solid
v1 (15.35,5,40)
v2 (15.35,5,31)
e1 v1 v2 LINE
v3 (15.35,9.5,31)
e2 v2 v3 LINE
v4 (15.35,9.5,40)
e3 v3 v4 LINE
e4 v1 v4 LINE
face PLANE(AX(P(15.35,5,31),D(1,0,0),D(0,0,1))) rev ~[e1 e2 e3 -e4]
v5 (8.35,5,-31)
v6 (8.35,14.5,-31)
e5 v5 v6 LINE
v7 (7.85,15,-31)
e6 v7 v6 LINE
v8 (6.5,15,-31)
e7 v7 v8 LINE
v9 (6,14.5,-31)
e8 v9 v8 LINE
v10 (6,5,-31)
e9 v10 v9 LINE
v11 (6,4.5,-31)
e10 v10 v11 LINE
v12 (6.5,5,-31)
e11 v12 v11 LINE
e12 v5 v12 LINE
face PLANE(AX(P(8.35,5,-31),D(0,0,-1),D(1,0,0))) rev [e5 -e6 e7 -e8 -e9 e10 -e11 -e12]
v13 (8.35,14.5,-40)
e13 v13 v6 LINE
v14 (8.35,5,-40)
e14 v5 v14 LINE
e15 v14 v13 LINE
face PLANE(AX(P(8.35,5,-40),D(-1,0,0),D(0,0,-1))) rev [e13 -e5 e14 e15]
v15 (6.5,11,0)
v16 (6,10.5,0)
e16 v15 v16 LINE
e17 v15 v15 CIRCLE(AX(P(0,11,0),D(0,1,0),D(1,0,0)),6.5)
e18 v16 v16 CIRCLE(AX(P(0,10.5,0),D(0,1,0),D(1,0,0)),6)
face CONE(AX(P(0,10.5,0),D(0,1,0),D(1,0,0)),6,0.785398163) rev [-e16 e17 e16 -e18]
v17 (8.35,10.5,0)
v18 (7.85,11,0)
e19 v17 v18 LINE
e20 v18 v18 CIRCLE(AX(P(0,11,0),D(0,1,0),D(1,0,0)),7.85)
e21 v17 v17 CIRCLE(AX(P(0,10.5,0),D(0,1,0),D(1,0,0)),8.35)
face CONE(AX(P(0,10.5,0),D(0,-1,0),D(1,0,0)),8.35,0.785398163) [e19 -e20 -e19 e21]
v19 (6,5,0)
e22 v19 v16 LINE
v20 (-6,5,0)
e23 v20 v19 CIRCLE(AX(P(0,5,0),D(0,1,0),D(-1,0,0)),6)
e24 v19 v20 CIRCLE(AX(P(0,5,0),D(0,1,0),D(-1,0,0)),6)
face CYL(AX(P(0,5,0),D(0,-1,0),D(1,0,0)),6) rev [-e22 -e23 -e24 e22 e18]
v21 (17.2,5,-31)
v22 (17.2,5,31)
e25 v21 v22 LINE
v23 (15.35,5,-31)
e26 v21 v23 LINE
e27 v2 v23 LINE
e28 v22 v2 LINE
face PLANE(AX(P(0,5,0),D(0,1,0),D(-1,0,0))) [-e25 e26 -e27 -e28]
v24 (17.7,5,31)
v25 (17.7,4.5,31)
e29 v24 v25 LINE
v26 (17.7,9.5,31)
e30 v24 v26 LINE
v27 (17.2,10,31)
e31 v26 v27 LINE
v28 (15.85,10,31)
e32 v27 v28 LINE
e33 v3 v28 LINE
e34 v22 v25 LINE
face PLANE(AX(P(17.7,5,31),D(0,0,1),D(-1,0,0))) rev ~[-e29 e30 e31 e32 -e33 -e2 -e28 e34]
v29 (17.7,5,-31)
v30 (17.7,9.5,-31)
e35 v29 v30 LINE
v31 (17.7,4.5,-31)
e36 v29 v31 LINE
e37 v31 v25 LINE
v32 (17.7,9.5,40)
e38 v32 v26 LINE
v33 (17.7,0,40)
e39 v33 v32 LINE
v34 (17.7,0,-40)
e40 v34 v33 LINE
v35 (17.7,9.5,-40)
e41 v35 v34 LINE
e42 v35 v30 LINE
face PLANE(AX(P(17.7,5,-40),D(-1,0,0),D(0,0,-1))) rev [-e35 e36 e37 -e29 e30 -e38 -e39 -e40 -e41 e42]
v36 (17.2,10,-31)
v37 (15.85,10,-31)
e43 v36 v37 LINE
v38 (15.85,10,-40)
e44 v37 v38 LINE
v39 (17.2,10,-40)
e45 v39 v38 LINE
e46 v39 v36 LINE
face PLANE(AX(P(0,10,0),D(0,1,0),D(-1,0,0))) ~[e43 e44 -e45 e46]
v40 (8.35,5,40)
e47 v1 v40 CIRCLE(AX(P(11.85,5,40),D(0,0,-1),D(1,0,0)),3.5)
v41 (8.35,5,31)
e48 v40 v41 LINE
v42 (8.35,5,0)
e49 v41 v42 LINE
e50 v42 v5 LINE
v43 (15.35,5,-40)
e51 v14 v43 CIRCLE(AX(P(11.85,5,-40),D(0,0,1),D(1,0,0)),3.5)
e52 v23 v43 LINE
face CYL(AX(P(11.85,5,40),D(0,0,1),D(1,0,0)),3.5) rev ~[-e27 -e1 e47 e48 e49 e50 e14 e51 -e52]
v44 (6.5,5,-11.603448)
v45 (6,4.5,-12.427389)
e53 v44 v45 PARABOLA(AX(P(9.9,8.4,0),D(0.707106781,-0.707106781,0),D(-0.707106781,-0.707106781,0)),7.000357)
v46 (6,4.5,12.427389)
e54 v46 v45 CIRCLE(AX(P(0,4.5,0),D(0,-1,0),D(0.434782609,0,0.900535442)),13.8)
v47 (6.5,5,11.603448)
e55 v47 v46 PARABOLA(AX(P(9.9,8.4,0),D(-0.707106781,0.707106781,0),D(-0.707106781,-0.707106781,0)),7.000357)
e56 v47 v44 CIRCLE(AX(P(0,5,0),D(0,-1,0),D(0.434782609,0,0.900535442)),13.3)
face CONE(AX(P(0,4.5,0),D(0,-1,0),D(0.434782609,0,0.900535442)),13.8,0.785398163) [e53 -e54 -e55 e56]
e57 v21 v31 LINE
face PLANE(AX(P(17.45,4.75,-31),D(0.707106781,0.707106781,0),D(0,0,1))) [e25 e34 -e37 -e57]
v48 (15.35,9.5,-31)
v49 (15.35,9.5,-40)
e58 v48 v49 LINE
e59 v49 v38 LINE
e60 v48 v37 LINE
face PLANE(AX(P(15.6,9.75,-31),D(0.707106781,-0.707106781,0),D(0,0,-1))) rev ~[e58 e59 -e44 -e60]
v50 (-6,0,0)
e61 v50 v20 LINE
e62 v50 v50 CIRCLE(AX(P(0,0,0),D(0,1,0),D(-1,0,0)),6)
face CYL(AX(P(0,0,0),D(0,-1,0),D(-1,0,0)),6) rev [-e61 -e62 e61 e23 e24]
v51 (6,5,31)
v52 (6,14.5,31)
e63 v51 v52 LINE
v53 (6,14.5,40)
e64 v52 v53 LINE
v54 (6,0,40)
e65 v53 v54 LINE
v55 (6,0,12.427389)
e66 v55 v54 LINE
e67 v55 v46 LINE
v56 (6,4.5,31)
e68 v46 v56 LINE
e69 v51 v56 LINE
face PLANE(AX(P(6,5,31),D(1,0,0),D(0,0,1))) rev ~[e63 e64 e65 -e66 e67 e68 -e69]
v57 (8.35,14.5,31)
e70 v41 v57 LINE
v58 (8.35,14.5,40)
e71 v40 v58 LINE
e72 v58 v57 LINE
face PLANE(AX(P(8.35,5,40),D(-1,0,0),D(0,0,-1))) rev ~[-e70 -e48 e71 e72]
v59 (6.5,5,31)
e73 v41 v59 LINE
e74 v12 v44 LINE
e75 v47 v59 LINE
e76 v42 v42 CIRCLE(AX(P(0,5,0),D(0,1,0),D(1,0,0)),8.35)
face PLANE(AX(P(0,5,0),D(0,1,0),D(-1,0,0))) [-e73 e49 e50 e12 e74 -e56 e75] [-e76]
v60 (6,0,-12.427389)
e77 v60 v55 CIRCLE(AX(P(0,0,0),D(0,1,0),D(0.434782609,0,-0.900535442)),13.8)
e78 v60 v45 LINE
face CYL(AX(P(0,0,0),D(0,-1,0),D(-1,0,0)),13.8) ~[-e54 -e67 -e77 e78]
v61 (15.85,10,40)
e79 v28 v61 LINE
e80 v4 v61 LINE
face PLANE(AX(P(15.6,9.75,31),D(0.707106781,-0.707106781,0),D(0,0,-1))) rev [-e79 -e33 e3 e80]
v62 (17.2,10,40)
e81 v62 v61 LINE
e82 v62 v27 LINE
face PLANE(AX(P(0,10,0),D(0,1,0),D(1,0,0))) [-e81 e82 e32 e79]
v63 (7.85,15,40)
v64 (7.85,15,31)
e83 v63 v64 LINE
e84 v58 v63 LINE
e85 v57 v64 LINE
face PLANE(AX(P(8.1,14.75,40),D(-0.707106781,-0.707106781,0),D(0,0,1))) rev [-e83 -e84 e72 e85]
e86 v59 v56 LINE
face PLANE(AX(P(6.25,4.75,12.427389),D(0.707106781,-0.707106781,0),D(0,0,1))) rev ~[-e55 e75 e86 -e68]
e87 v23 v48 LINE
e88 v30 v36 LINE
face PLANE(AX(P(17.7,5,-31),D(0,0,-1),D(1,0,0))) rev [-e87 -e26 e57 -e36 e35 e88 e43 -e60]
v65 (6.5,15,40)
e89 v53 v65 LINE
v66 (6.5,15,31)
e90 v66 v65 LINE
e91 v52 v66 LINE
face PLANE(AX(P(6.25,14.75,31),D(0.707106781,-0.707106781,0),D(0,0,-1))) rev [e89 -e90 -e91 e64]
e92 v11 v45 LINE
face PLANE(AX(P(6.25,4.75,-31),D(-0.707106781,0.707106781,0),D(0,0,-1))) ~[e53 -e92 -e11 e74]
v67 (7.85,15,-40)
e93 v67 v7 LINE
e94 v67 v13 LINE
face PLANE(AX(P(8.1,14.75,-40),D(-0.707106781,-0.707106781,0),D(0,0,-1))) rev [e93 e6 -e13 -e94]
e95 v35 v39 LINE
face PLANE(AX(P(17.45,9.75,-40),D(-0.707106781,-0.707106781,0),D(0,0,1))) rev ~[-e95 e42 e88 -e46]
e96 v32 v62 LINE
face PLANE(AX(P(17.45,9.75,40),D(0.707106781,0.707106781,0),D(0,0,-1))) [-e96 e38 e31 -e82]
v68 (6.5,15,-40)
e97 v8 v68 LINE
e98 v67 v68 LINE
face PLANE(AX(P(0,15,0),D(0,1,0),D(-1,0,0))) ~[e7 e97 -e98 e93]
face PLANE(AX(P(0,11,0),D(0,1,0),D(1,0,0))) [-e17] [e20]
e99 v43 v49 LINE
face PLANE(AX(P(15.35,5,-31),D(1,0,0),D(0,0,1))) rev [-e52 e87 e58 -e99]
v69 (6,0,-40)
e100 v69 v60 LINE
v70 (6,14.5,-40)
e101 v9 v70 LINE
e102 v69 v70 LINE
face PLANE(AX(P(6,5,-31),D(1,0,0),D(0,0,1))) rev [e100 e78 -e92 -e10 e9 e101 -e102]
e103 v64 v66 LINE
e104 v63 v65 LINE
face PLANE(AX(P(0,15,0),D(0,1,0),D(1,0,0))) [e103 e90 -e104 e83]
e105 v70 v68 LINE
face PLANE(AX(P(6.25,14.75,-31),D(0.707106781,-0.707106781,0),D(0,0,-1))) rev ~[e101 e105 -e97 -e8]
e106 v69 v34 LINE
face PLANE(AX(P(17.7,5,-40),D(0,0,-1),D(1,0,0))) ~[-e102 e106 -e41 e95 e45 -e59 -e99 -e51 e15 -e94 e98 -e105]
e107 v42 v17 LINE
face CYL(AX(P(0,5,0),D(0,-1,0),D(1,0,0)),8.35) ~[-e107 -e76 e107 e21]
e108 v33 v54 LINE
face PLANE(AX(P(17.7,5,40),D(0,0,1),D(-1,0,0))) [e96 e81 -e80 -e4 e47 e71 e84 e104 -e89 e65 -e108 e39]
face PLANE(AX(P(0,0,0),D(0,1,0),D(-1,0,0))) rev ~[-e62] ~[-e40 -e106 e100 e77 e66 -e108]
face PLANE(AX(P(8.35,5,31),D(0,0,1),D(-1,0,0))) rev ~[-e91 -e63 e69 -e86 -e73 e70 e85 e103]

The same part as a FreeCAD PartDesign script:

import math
import FreeCAD as App
import Part
import Sketcher
from FreeCAD import Vector


def edges_at(feature, points):
    """Names of the edges that pass closest to the given points."""
    edges = feature.Shape.Edges
    near = lambda p: min(range(len(edges)), key=lambda i: edges[i].distToShape(Part.Vertex(*p))[0])
    return sorted({f"Edge{near(p) + 1}" for p in points})

doc = App.newDocument("Part")
params = doc.addObject("Spreadsheet::Sheet", "Params")
for row, (alias, value) in enumerate([
    ("sketch1_diameter", "12 mm"),
    ("sketch1_diameter2", "27.6 mm"),
    ("pad1_length", "5 mm"),
    ("sketch2_height", "80 mm"),
    ("sketch2_radius", "13.8 mm"),
    ("sketch2_width", "11.7 mm"),
    ("pad2_length", "5 mm"),
    ("sketch3_radius", "3.5 mm"),
    ("sketch4_height", "9 mm"),
    ("sketch4_width", "2.35 mm"),
    ("pad3_length", "10 mm"),
    ("sketch5_height", "9 mm"),
    ("sketch5_width", "2.35 mm"),
    ("pad4_length", "5 mm"),
    ("sketch6_diameter", "12 mm"),
    ("sketch6_diameter2", "16.7 mm"),
    ("pad5_length", "6 mm"),
    ("chamfer_size", "0.5 mm"),
], start=1):
    params.set(f"A{row}", alias)
    params.set(f"B{row}", "=" + value)
    params.setAlias(f"B{row}", alias)

body = doc.addObject("PartDesign::Body", "Body")

sketch1 = body.newObject("Sketcher::SketchObject", "Sketch")
sketch1.AttachmentSupport = (doc.getObject("XZ_Plane"), [""])
sketch1.MapMode = "FlatFace"
sketch1.addGeometry([
    Part.Circle(Vector(0, 0, 0), Vector(0, 0, 1), 13.8),
    Part.Circle(Vector(0, 0, 0), Vector(0, 0, 1), 6),
], False)
sketch1.addConstraint([
    Sketcher.Constraint("Coincident", 0, 3, -1, 1),
    Sketcher.Constraint("Coincident", 1, 3, -1, 1),
    Sketcher.Constraint("Diameter", 1, 12.0),
    Sketcher.Constraint("Diameter", 0, 27.6),
])
sketch1.setExpression("Constraints[2]", "Params.sketch1_diameter")
sketch1.setExpression("Constraints[3]", "Params.sketch1_diameter2")
pad1 = body.newObject("PartDesign::Pad", "Pad")
pad1.Profile = sketch1
pad1.setExpression("Length", "Params.pad1_length")
pad1.Reversed = True

sketch2 = body.newObject("Sketcher::SketchObject", "Sketch001")
sketch2.AttachmentSupport = (doc.getObject("XZ_Plane"), [""])
sketch2.MapMode = "FlatFace"
sketch2.addGeometry([
    Part.LineSegment(Vector(6, -12.427389, 0), Vector(6, -40, 0)),
    Part.LineSegment(Vector(6, -40, 0), Vector(17.7, -40, 0)),
    Part.LineSegment(Vector(17.7, -40, 0), Vector(17.7, 40, 0)),
    Part.LineSegment(Vector(17.7, 40, 0), Vector(6, 40, 0)),
    Part.LineSegment(Vector(6, 40, 0), Vector(6, 12.427389, 0)),
    Part.ArcOfCircle(Part.Circle(Vector(0, 0, 0), Vector(0, 0, 1), 13.8), math.radians(-64.228538), math.radians(64.228538)),
], False)
sketch2.addConstraint([
    Sketcher.Constraint("Coincident", 0, 2, 1, 1),
    Sketcher.Constraint("Coincident", 1, 2, 2, 1),
    Sketcher.Constraint("Coincident", 2, 2, 3, 1),
    Sketcher.Constraint("Coincident", 3, 2, 4, 1),
    Sketcher.Constraint("Coincident", 4, 2, 5, 2),
    Sketcher.Constraint("Coincident", 5, 1, 0, 1),
    Sketcher.Constraint("Vertical", 0),
    Sketcher.Constraint("Horizontal", 1),
    Sketcher.Constraint("Vertical", 2),
    Sketcher.Constraint("Horizontal", 3),
    Sketcher.Constraint("Vertical", 4),
    Sketcher.Constraint("Coincident", 5, 3, -1, 1),
    Sketcher.Constraint("Symmetric", 0, 2, 3, 2, -1),
    Sketcher.Constraint("DistanceY", 2, 1, 2, 2, 80.0),
    Sketcher.Constraint("Radius", 5, 13.8),
    Sketcher.Constraint("DistanceX", 1, 1, 1, 2, 11.7),
    Sketcher.Constraint("DistanceX", -1, 1, 0, 2, 6.0),
])
sketch2.setExpression("Constraints[13]", "Params.sketch2_height")
sketch2.setExpression("Constraints[14]", "Params.sketch2_radius")
sketch2.setExpression("Constraints[15]", "Params.sketch2_width")
pad2 = body.newObject("PartDesign::Pad", "Pad001")
pad2.Profile = sketch2
pad2.setExpression("Length", "Params.pad2_length")
pad2.Reversed = True

sketch3 = body.newObject("Sketcher::SketchObject", "Sketch002")
sketch3.AttachmentSupport = (doc.getObject("XY_Plane"), [""])
sketch3.MapMode = "FlatFace"
sketch3.AttachmentOffset = App.Placement(Vector(0, 0, 40), App.Rotation())
sketch3.addGeometry([
    Part.ArcOfCircle(Part.Circle(Vector(11.85, 5, 0), Vector(0, 0, 1), 3.5), math.radians(180), math.radians(360)),
    Part.LineSegment(Vector(15.35, 5, 0), Vector(8.35, 5, 0)),
], False)
sketch3.addConstraint([
    Sketcher.Constraint("Coincident", 0, 1, 1, 2),
    Sketcher.Constraint("Coincident", 1, 1, 0, 2),
    Sketcher.Constraint("Horizontal", 1),
    Sketcher.Constraint("Radius", 0, 3.5),
    Sketcher.Constraint("DistanceY", -1, 1, 0, 3, 5.0),
    Sketcher.Constraint("DistanceY", -1, 1, 0, 1, 5.0),
    Sketcher.Constraint("DistanceX", -1, 1, 0, 3, 11.85),
])
sketch3.setExpression("Constraints[3]", "Params.sketch3_radius")
pocket1 = body.newObject("PartDesign::Pocket", "Pocket")
pocket1.Profile = sketch3
pocket1.Type = "ThroughAll"

sketch4 = body.newObject("Sketcher::SketchObject", "Sketch003")
sketch4.AttachmentSupport = (doc.getObject("XZ_Plane"), [""])
sketch4.MapMode = "FlatFace"
sketch4.AttachmentOffset = App.Placement(Vector(0, 0, -5), App.Rotation())
sketch4.addGeometry([
    Part.LineSegment(Vector(6, 40, 0), Vector(8.35, 40, 0)),
    Part.LineSegment(Vector(8.35, 40, 0), Vector(8.35, 31, 0)),
    Part.LineSegment(Vector(8.35, 31, 0), Vector(6, 31, 0)),
    Part.LineSegment(Vector(6, 31, 0), Vector(6, 40, 0)),
], False)
sketch4.addConstraint([
    Sketcher.Constraint("Coincident", 0, 2, 1, 1),
    Sketcher.Constraint("Coincident", 1, 2, 2, 1),
    Sketcher.Constraint("Coincident", 2, 2, 3, 1),
    Sketcher.Constraint("Coincident", 3, 2, 0, 1),
    Sketcher.Constraint("Horizontal", 0),
    Sketcher.Constraint("Vertical", 1),
    Sketcher.Constraint("Horizontal", 2),
    Sketcher.Constraint("Vertical", 3),
    Sketcher.Constraint("DistanceY", 1, 2, 1, 1, 9.0),
    Sketcher.Constraint("DistanceY", -1, 1, 0, 2, 40.0),
    Sketcher.Constraint("DistanceX", -1, 1, 2, 2, 6.0),
    Sketcher.Constraint("DistanceX", 0, 1, 0, 2, 2.35),
])
sketch4.setExpression("Constraints[8]", "Params.sketch4_height")
sketch4.setExpression("Constraints[11]", "Params.sketch4_width")
pad3 = body.newObject("PartDesign::Pad", "Pad002")
pad3.Profile = sketch4
pad3.setExpression("Length", "Params.pad3_length")
pad3.Reversed = True

sketch5 = body.newObject("Sketcher::SketchObject", "Sketch004")
sketch5.AttachmentSupport = (doc.getObject("XZ_Plane"), [""])
sketch5.MapMode = "FlatFace"
sketch5.AttachmentOffset = App.Placement(Vector(0, 0, -5), App.Rotation())
sketch5.addGeometry([
    Part.LineSegment(Vector(15.35, 40, 0), Vector(17.7, 40, 0)),
    Part.LineSegment(Vector(17.7, 40, 0), Vector(17.7, 31, 0)),
    Part.LineSegment(Vector(17.7, 31, 0), Vector(15.35, 31, 0)),
    Part.LineSegment(Vector(15.35, 31, 0), Vector(15.35, 40, 0)),
], False)
sketch5.addConstraint([
    Sketcher.Constraint("Coincident", 0, 2, 1, 1),
    Sketcher.Constraint("Coincident", 1, 2, 2, 1),
    Sketcher.Constraint("Coincident", 2, 2, 3, 1),
    Sketcher.Constraint("Coincident", 3, 2, 0, 1),
    Sketcher.Constraint("Horizontal", 0),
    Sketcher.Constraint("Vertical", 1),
    Sketcher.Constraint("Horizontal", 2),
    Sketcher.Constraint("Vertical", 3),
    Sketcher.Constraint("DistanceY", 1, 2, 1, 1, 9.0),
    Sketcher.Constraint("DistanceY", -1, 1, 0, 2, 40.0),
    Sketcher.Constraint("DistanceX", 0, 1, 0, 2, 2.35),
    Sketcher.Constraint("DistanceX", -1, 1, 0, 2, 17.7),
])
sketch5.setExpression("Constraints[8]", "Params.sketch5_height")
sketch5.setExpression("Constraints[10]", "Params.sketch5_width")
pad4 = body.newObject("PartDesign::Pad", "Pad003")
pad4.Profile = sketch5
pad4.setExpression("Length", "Params.pad4_length")
pad4.Reversed = True
doc.recompute()

mirrored = body.newObject("PartDesign::Mirrored", "Mirrored")
mirrored.Originals = [pad3, pad4]
mirrored.MirrorPlane = (doc.getObject("XY_Plane"), [""])
body.Tip = mirrored

sketch6 = body.newObject("Sketcher::SketchObject", "Sketch005")
sketch6.AttachmentSupport = (doc.getObject("XZ_Plane"), [""])
sketch6.MapMode = "FlatFace"
sketch6.AttachmentOffset = App.Placement(Vector(0, 0, -5), App.Rotation())
sketch6.addGeometry([
    Part.Circle(Vector(0, 0, 0), Vector(0, 0, 1), 8.35),
    Part.Circle(Vector(0, 0, 0), Vector(0, 0, 1), 6),
], False)
sketch6.addConstraint([
    Sketcher.Constraint("Coincident", 0, 3, -1, 1),
    Sketcher.Constraint("Coincident", 1, 3, -1, 1),
    Sketcher.Constraint("Diameter", 1, 12.0),
    Sketcher.Constraint("Diameter", 0, 16.7),
])
sketch6.setExpression("Constraints[2]", "Params.sketch6_diameter")
sketch6.setExpression("Constraints[3]", "Params.sketch6_diameter2")
pad5 = body.newObject("PartDesign::Pad", "Pad004")
pad5.Profile = sketch6
pad5.setExpression("Length", "Params.pad5_length")
pad5.Reversed = True
doc.recompute()

chamfer = body.newObject("PartDesign::Chamfer", "Chamfer")
chamfer.Base = (pad5, edges_at(pad5, [
    (-8.35, 11, 0),
    (-6, 11, 0),
    (-13.8, 5, 0),
    (6, 5, -21.714),
    (6, 5, 21.714),
    (8.35, 15, 35.5),
    (6, 15, 35.5),
    (8.35, 15, -35.5),
    (6, 15, -35.5),
    (17.7, 10, -35.5),
    (15.35, 10, -35.5),
    (17.7, 10, 35.5),
    (15.35, 10, 35.5),
    (17.7, 5, 0),
]))
chamfer.setExpression("Size", "Params.chamfer_size")

doc.recompute()
